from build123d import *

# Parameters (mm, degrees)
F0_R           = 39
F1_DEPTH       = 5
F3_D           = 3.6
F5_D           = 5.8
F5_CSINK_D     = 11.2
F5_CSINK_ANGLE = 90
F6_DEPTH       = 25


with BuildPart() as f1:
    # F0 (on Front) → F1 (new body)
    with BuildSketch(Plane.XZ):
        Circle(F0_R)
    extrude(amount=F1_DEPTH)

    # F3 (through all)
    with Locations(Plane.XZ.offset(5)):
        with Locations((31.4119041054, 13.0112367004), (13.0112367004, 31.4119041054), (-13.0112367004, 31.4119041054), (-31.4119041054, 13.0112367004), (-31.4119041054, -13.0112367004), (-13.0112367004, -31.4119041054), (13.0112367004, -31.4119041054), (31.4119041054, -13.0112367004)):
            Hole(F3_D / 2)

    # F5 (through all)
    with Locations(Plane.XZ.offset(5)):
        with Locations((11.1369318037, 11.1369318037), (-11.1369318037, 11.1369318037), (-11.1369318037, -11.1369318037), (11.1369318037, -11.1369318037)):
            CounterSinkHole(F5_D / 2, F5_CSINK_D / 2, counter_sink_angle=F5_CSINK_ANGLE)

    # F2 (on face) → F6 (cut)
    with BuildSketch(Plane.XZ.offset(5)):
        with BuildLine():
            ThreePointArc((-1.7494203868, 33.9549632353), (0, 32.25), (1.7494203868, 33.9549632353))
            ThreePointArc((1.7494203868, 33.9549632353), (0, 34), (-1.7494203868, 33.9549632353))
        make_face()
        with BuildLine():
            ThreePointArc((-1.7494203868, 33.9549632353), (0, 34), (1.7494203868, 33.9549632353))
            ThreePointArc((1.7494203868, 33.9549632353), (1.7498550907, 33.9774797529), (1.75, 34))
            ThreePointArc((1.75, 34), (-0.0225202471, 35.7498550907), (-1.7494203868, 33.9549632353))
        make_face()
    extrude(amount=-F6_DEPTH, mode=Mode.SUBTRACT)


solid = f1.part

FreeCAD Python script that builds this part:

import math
import FreeCAD as App
import Part
import Sketcher
from FreeCAD import Vector
Q = App.Units.Quantity

doc = App.newDocument("Part")
body = doc.addObject("PartDesign::Body", "Body")

sketch1 = doc.addObject("Sketcher::SketchObject", "Sketch")
body.addObject(sketch1)
sketch1.AttachmentSupport = (doc.XZ_Plane, [""])
sketch1.MapMode = "FlatFace"
sketch1.addGeometry(Part.Circle(Vector(0, 0, 0), Vector(0, 0, 1), 39), False)
sketch1.addConstraint([
    Sketcher.Constraint("Coincident", 0, 3, -1, 1),
    Sketcher.Constraint("Diameter", 0, Q("78 mm")),
])
pad1 = doc.addObject("PartDesign::Pad", "Pad")
body.addObject(pad1)
pad1.Profile = sketch1
pad1.Length = 5

sketch2 = doc.addObject("Sketcher::SketchObject", "Sketch001")
body.addObject(sketch2)
sketch2.AttachmentSupport = (doc.XZ_Plane, [""])
sketch2.MapMode = "FlatFace"
sketch2.AttachmentOffset = App.Placement(Vector(0, 0, 5), App.Rotation())
sketch2.addGeometry([
    Part.Circle(Vector(31.4, 13, 0), Vector(0, 0, 1), 1.8),
    Part.Circle(Vector(13, 31.4, 0), Vector(0, 0, 1), 1.8),
    Part.Circle(Vector(-13, 31.4, 0), Vector(0, 0, 1), 1.8),
    Part.Circle(Vector(-31.4, 13, 0), Vector(0, 0, 1), 1.8),
    Part.Circle(Vector(-31.4, -13, 0), Vector(0, 0, 1), 1.8),
    Part.Circle(Vector(-13, -31.4, 0), Vector(0, 0, 1), 1.8),
    Part.Circle(Vector(13, -31.4, 0), Vector(0, 0, 1), 1.8),
    Part.Circle(Vector(31.4, -13, 0), Vector(0, 0, 1), 1.8),
], False)
sketch2.addConstraint([
    Sketcher.Constraint("Equal", 0, 1),
    Sketcher.Constraint("Equal", 1, 2),
    Sketcher.Constraint("Equal", 2, 3),
    Sketcher.Constraint("Equal", 3, 4),
    Sketcher.Constraint("Equal", 4, 5),
    Sketcher.Constraint("Equal", 5, 6),
    Sketcher.Constraint("Equal", 6, 7),
    Sketcher.Constraint("Symmetric", 0, 3, 4, 3, -1, 1),
    Sketcher.Constraint("Symmetric", 1, 3, 5, 3, -1, 1),
    Sketcher.Constraint("Symmetric", 2, 3, 6, 3, -1, 1),
    Sketcher.Constraint("Symmetric", 3, 3, 7, 3, -1, 1),
    Sketcher.Constraint("Symmetric", 1, 3, 2, 3, -2),
    Sketcher.Constraint("Symmetric", 0, 3, 3, 3, -2),
    Sketcher.Constraint("Diameter", 0, Q("3.6 mm")),
    Sketcher.Constraint("DistanceX", 2, 3, 0, 3, Q("44.423141 mm")),
    Sketcher.Constraint("DistanceX", 3, 3, 0, 3, Q("62.823808 mm")),
    Sketcher.Constraint("DistanceY", 4, 3, 2, 3, Q("44.423141 mm")),
    Sketcher.Constraint("DistanceY", 5, 3, 2, 3, Q("62.823808 mm")),
])
doc.recompute()
hole = doc.addObject("PartDesign::Hole", "Hole")
body.addObject(hole)
hole.Profile = sketch2
hole.ThreadType = "None"
hole.Diameter = 3.6
hole.DepthType = "ThroughAll"

sketch3 = doc.addObject("Sketcher::SketchObject", "Sketch002")
body.addObject(sketch3)
sketch3.AttachmentSupport = (doc.XZ_Plane, [""])
sketch3.MapMode = "FlatFace"
sketch3.AttachmentOffset = App.Placement(Vector(0, 0, 5), App.Rotation())
sketch3.addGeometry([
    Part.Circle(Vector(11.1, 11.1, 0), Vector(0, 0, 1), 2.9),
    Part.Circle(Vector(-11.1, 11.1, 0), Vector(0, 0, 1), 2.9),
    Part.Circle(Vector(-11.1, -11.1, 0), Vector(0, 0, 1), 2.9),
    Part.Circle(Vector(11.1, -11.1, 0), Vector(0, 0, 1), 2.9),
], False)
sketch3.addConstraint([
    Sketcher.Constraint("Equal", 0, 1),
    Sketcher.Constraint("Equal", 1, 2),
    Sketcher.Constraint("Equal", 2, 3),
    Sketcher.Constraint("Symmetric", 0, 3, 2, 3, -1, 1),
    Sketcher.Constraint("Symmetric", 1, 3, 3, 3, -1, 1),
    Sketcher.Constraint("Symmetric", 0, 3, 1, 3, -2),
    Sketcher.Constraint("Diameter", 0, Q("5.8 mm")),
    Sketcher.Constraint("DistanceX", -1, 1, 0, 3, Q("11.136932 mm")),
    Sketcher.Constraint("DistanceY", -1, 1, 0, 3, Q("11.136932 mm")),
])
doc.recompute()
hole2 = doc.addObject("PartDesign::Hole", "Hole001")
body.addObject(hole2)
hole2.Profile = sketch3
hole2.ThreadType = "None"
hole2.Diameter = 5.8
hole2.DepthType = "ThroughAll"
hole2.HoleCutType = "Countersink"
hole2.HoleCutDiameter = 11.2
hole2.HoleCutCountersinkAngle = 90

sketch4 = doc.addObject("Sketcher::SketchObject", "Sketch003")
body.addObject(sketch4)
sketch4.AttachmentSupport = (doc.XZ_Plane, [""])
sketch4.MapMode = "FlatFace"
sketch4.AttachmentOffset = App.Placement(Vector(0, 0, 5), App.Rotation())
sketch4.addGeometry([
    Part.ArcOfCircle(Part.Circle(Vector(0, 34, 0), Vector(0, 0, 1), 1.75), math.radians(-179), math.radians(-1)),
    Part.ArcOfCircle(Part.Circle(Vector(0, 34, 0), Vector(0, 0, 1), 1.75), math.radians(-1.47), math.radians(0)),
    Part.ArcOfCircle(Part.Circle(Vector(0, 34, 0), Vector(0, 0, 1), 1.75), math.radians(0), math.radians(181)),
], False)
sketch4.addConstraint([
    Sketcher.Constraint("Tangent", 0, 2, 1, 1),
    Sketcher.Constraint("Tangent", 1, 2, 2, 1),
    Sketcher.Constraint("Tangent", 2, 2, 0, 1),
    Sketcher.Constraint("Symmetric", 0, 2, 2, 2, -2),
    Sketcher.Constraint("Horizontal", 2, 3, 1, 2),
    Sketcher.Constraint("Radius", 0, Q("1.75 mm")),
    Sketcher.Constraint("DistanceY", -1, 1, 0, 3, Q("34 mm")),
    Sketcher.Constraint("DistanceX", -1, 1, 0, 2, Q("1.74942 mm")),
])
pocket1 = doc.addObject("PartDesign::Pocket", "Pocket")
body.addObject(pocket1)
pocket1.Profile = sketch4
pocket1.Length = 25

doc.recompute()
